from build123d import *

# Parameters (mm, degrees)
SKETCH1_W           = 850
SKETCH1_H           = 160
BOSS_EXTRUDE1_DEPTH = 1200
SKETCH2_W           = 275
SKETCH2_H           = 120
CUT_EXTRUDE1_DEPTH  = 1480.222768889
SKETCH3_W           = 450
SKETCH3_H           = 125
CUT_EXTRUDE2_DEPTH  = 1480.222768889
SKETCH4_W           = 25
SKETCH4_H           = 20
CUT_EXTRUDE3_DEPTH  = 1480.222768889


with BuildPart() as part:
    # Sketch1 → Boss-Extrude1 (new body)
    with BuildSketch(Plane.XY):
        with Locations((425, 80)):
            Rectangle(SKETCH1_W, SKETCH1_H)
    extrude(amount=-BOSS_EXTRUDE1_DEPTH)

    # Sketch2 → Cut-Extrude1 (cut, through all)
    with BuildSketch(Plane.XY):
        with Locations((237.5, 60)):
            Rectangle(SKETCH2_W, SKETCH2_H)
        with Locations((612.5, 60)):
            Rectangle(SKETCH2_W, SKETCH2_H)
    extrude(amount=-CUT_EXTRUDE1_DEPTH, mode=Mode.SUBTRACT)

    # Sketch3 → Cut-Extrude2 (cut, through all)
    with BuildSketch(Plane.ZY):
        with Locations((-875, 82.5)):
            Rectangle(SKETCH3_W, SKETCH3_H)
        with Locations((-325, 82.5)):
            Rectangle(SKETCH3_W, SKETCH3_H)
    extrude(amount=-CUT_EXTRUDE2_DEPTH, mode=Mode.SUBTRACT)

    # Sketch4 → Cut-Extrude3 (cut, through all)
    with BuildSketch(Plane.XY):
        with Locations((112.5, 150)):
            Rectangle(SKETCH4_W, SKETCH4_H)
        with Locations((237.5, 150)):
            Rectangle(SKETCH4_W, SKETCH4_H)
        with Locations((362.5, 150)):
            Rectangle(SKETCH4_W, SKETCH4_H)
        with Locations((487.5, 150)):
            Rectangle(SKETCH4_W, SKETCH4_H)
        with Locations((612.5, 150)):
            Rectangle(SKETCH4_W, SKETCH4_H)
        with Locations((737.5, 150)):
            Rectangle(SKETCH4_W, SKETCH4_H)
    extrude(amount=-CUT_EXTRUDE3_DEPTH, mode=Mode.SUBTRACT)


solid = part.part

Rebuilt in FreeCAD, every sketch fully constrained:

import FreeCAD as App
import Part
import Sketcher
from FreeCAD import Vector
Q = App.Units.Quantity


def add_polygon(sketch, points):
    """Adds a closed chain of lines whose ends are joined by coincident constraints."""
    first, n = sketch.GeometryCount, len(points)
    for a, b in zip(points, points[1:] + points[:1]):
        sketch.addGeometry(Part.LineSegment(App.Vector(*a, 0), App.Vector(*b, 0)), False)
    for i in range(n):
        sketch.addConstraint(Sketcher.Constraint("Coincident", first + i, 2, first + (i + 1) % n, 1))

doc = App.newDocument("Part")
body = doc.addObject("PartDesign::Body", "Body")

sketch1 = body.newObject("Sketcher::SketchObject", "Sketch")
sketch1.AttachmentSupport = (doc.getObject("XY_Plane"), [""])
sketch1.MapMode = "FlatFace"
add_polygon(sketch1, [(0, 160), (0, 0), (850, 0), (850, 160)])
sketch1.addConstraint([
    Sketcher.Constraint("Vertical", 0),
    Sketcher.Constraint("Horizontal", 1),
    Sketcher.Constraint("Vertical", 2),
    Sketcher.Constraint("Horizontal", 3),
    Sketcher.Constraint("Coincident", 0, 2, -1, 1),
    Sketcher.Constraint("DistanceX", 1, 1, 1, 2, Q("850 mm")),
    Sketcher.Constraint("DistanceY", 0, 2, 0, 1, Q("160 mm")),
])
pad1 = body.newObject("PartDesign::Pad", "Pad")
pad1.Profile = sketch1
pad1.Length = 1200
pad1.Reversed = True

sketch2 = body.newObject("Sketcher::SketchObject", "Sketch001")
sketch2.AttachmentSupport = (doc.getObject("XY_Plane"), [""])
sketch2.MapMode = "FlatFace"
add_polygon(sketch2, [(100, 120), (100, 0), (375, 0), (375, 120)])
add_polygon(sketch2, [(475, 120), (475, 0), (750, 0), (750, 120)])
sketch2.addConstraint([
    Sketcher.Constraint("Vertical", 0),
    Sketcher.Constraint("Horizontal", 1),
    Sketcher.Constraint("Vertical", 2),
    Sketcher.Constraint("Horizontal", 3),
    Sketcher.Constraint("Vertical", 4),
    Sketcher.Constraint("Horizontal", 5),
    Sketcher.Constraint("Vertical", 6),
    Sketcher.Constraint("Horizontal", 7),
    Sketcher.Constraint("PointOnObject", 0, 2, -1),
    Sketcher.Constraint("PointOnObject", 4, 2, -1),
    Sketcher.Constraint("Horizontal", 3, 2, 6, 2),
    Sketcher.Constraint("Equal", 3, 5),
    Sketcher.Constraint("DistanceX", 1, 1, 1, 2, Q("275 mm")),
    Sketcher.Constraint("DistanceY", 0, 2, 0, 1, Q("120 mm")),
    Sketcher.Constraint("DistanceX", -1, 1, 0, 2, Q("100 mm")),
    Sketcher.Constraint("DistanceX", -1, 1, 4, 2, Q("475 mm")),
])
pocket1 = body.newObject("PartDesign::Pocket", "Pocket")
pocket1.Profile = sketch2
pocket1.Type = "ThroughAll"

sketch3 = body.newObject("Sketcher::SketchObject", "Sketch002")
sketch3.AttachmentSupport = (doc.getObject("YZ_Plane"), [""])
sketch3.MapMode = "FlatFace"
add_polygon(sketch3, [(145, -1100), (20, -1100), (20, -650), (145, -650)])
add_polygon(sketch3, [(145, -550), (20, -550), (20, -100), (145, -100)])
sketch3.addConstraint([
    Sketcher.Constraint("Horizontal", 0),
    Sketcher.Constraint("Vertical", 1),
    Sketcher.Constraint("Horizontal", 2),
    Sketcher.Constraint("Vertical", 3),
    Sketcher.Constraint("Horizontal", 4),
    Sketcher.Constraint("Vertical", 5),
    Sketcher.Constraint("Horizontal", 6),
    Sketcher.Constraint("Vertical", 7),
    Sketcher.Constraint("Vertical", 1, 2, 4, 2),
    Sketcher.Constraint("Vertical", 3, 2, 6, 2),
    Sketcher.Constraint("Equal", 3, 5),
    Sketcher.Constraint("DistanceX", 0, 2, 0, 1, Q("125 mm")),
    Sketcher.Constraint("DistanceY", 1, 1, 1, 2, Q("450 mm")),
    Sketcher.Constraint("DistanceX", -1, 1, 0, 2, Q("20 mm")),
    Sketcher.Constraint("DistanceY", 0, 2, -1, 1, Q("1100 mm")),
    Sketcher.Constraint("DistanceY", 4, 2, -1, 1, Q("550 mm")),
])
pocket2 = body.newObject("PartDesign::Pocket", "Pocket001")
pocket2.Profile = sketch3
pocket2.Type = "ThroughAll"
pocket2.Reversed = True

sketch4 = body.newObject("Sketcher::SketchObject", "Sketch003")
sketch4.AttachmentSupport = (doc.getObject("XY_Plane"), [""])
sketch4.MapMode = "FlatFace"
add_polygon(sketch4, [(100, 160), (100, 140), (125, 140), (125, 160)])
add_polygon(sketch4, [(225, 160), (225, 140), (250, 140), (250, 160)])
add_polygon(sketch4, [(350, 160), (350, 140), (375, 140), (375, 160)])
add_polygon(sketch4, [(475, 160), (475, 140), (500, 140), (500, 160)])
add_polygon(sketch4, [(600, 160), (600, 140), (625, 140), (625, 160)])
add_polygon(sketch4, [(725, 160), (725, 140), (750, 140), (750, 160)])
sketch4.addConstraint([
    Sketcher.Constraint("Vertical", 0),
    Sketcher.Constraint("Horizontal", 1),
    Sketcher.Constraint("Vertical", 2),
    Sketcher.Constraint("Horizontal", 3),
    Sketcher.Constraint("Vertical", 4),
    Sketcher.Constraint("Horizontal", 5),
    Sketcher.Constraint("Vertical", 6),
    Sketcher.Constraint("Horizontal", 7),
    Sketcher.Constraint("Vertical", 8),
    Sketcher.Constraint("Horizontal", 9),
    Sketcher.Constraint("Vertical", 10),
    Sketcher.Constraint("Horizontal", 11),
    Sketcher.Constraint("Vertical", 12),
    Sketcher.Constraint("Horizontal", 13),
    Sketcher.Constraint("Vertical", 14),
    Sketcher.Constraint("Horizontal", 15),
    Sketcher.Constraint("Vertical", 16),
    Sketcher.Constraint("Horizontal", 17),
    Sketcher.Constraint("Vertical", 18),
    Sketcher.Constraint("Horizontal", 19),
    Sketcher.Constraint("Vertical", 20),
    Sketcher.Constraint("Horizontal", 21),
    Sketcher.Constraint("Vertical", 22),
    Sketcher.Constraint("Horizontal", 23),
    Sketcher.Constraint("Horizontal", 1, 2, 4, 2),
    Sketcher.Constraint("Horizontal", 3, 2, 6, 2),
    Sketcher.Constraint("Horizontal", 5, 2, 8, 2),
    Sketcher.Constraint("Horizontal", 7, 2, 10, 2),
    Sketcher.Constraint("Horizontal", 9, 2, 12, 2),
    Sketcher.Constraint("Horizontal", 11, 2, 14, 2),
    Sketcher.Constraint("Horizontal", 13, 2, 16, 2),
    Sketcher.Constraint("Horizontal", 15, 2, 18, 2),
    Sketcher.Constraint("Horizontal", 17, 2, 20, 2),
    Sketcher.Constraint("Horizontal", 19, 2, 22, 2),
    Sketcher.Constraint("Equal", 3, 5),
    Sketcher.Constraint("Equal", 7, 9),
    Sketcher.Constraint("Equal", 11, 13),
    Sketcher.Constraint("Equal", 15, 17),
    Sketcher.Constraint("Equal", 19, 21),
    Sketcher.Constraint("DistanceX", 1, 1, 1, 2, Q("25 mm")),
    Sketcher.Constraint("DistanceY", 0, 2, 0, 1, Q("20 mm")),
    Sketcher.Constraint("DistanceX", -1, 1, 0, 2, Q("100 mm")),
    Sketcher.Constraint("DistanceY", -1, 1, 0, 2, Q("140 mm")),
    Sketcher.Constraint("DistanceX", -1, 1, 4, 2, Q("225 mm")),
    Sketcher.Constraint("DistanceX", -1, 1, 8, 2, Q("350 mm")),
    Sketcher.Constraint("DistanceX", -1, 1, 12, 2, Q("475 mm")),
    Sketcher.Constraint("DistanceX", -1, 1, 16, 2, Q("600 mm")),
    Sketcher.Constraint("DistanceX", -1, 1, 20, 2, Q("725 mm")),
])
pocket3 = body.newObject("PartDesign::Pocket", "Pocket002")
pocket3.Profile = sketch4
pocket3.Type = "ThroughAll"

doc.recompute()
